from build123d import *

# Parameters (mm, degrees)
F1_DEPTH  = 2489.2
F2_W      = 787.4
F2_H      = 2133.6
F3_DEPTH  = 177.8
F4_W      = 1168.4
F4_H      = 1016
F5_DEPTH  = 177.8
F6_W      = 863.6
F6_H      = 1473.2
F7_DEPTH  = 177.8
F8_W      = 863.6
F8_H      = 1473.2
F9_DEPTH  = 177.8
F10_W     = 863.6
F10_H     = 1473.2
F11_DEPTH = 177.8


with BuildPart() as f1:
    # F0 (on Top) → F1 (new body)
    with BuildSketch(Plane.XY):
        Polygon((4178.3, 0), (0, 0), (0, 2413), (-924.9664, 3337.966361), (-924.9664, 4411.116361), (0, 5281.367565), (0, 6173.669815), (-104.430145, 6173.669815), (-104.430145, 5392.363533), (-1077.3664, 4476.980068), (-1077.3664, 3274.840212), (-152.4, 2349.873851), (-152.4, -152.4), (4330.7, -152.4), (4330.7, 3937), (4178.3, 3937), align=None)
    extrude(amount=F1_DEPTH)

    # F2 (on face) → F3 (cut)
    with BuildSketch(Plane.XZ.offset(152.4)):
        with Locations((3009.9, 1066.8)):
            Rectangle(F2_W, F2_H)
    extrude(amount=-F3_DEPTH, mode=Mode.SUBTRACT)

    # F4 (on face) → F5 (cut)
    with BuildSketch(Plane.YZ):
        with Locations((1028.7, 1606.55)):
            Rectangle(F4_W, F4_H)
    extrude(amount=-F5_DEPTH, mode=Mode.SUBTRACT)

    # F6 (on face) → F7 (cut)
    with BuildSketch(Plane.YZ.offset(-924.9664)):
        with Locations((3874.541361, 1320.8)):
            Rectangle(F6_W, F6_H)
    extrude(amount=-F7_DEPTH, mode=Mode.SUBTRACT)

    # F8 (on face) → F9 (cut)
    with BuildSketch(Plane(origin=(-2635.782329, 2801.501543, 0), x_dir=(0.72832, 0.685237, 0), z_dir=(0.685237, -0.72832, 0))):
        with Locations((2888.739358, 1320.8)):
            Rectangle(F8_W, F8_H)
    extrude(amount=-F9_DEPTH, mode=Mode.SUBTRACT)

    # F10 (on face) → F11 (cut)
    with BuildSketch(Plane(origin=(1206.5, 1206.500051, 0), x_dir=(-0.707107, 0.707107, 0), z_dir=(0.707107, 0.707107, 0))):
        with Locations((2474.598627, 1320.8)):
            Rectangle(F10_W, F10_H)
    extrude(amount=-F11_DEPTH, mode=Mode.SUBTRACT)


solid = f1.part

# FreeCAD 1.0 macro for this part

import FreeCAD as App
import Part
import Sketcher
from FreeCAD import Vector
Q = App.Units.Quantity


def add_polygon(sketch, points):
    """Adds a closed chain of lines whose ends are joined by coincident constraints."""
    first, n = sketch.GeometryCount, len(points)
    for a, b in zip(points, points[1:] + points[:1]):
        sketch.addGeometry(Part.LineSegment(App.Vector(*a, 0), App.Vector(*b, 0)), False)
    for i in range(n):
        sketch.addConstraint(Sketcher.Constraint("Coincident", first + i, 2, first + (i + 1) % n, 1))

doc = App.newDocument("Part")
params = doc.addObject("Spreadsheet::Sheet", "Params")
for row, (alias, value) in enumerate([
    ("sketch1_width", "6 in"),
    ("sketch1_height", "95 in"),
    ("sketch1_height2", "161 in"),
    ("sketch1_height3", "155 in"),
    ("sketch1_length", "50 in"),
    ("pad1_length", "98 in"),
    ("sketch2_width", "31 in"),
    ("sketch2_height", "84 in"),
    ("pocket1_length", "7 in"),
    ("sketch3_width", "46 in"),
    ("sketch3_height", "40 in"),
    ("pocket2_length", "7 in"),
    ("sketch4_width", "34 in"),
    ("sketch4_height", "58 in"),
    ("pocket3_length", "7 in"),
    ("sketch5_width", "34 in"),
    ("sketch5_height", "57.9999999 in"),
    ("pocket4_length", "7 in"),
    ("sketch6_width", "34 in"),
    ("sketch6_height", "57.9999999 in"),
    ("pocket5_length", "7 in"),
], start=1):
    params.set(f"A{row}", alias)
    params.set(f"B{row}", "=" + value)
    params.setAlias(f"B{row}", alias)

body = doc.addObject("PartDesign::Body", "Body")

# Sketch on XY plane
sketch1 = body.newObject("Sketcher::SketchObject", "Sketch")
sketch1.AttachmentSupport = (doc.getObject("XY_Plane"), [""])
sketch1.MapMode = "FlatFace"
add_polygon(sketch1, [(4178, 0), (0, 0), (0, 2413), (-925, 3338), (-925, 4411), (0, 5281), (0, 6174), (-104, 6174), (-104, 5392), (-1077, 4477), (-1077, 3275), (-152, 2350), (-152, -152), (4331, -152), (4331, 3937), (4178, 3937)])  # lines 0-15
sketch1.addConstraint(Sketcher.Constraint("Horizontal", 0))
sketch1.addConstraint(Sketcher.Constraint("Vertical", 1))
sketch1.addConstraint(Sketcher.Constraint("Vertical", 3))
sketch1.addConstraint(Sketcher.Constraint("Vertical", 5))
sketch1.addConstraint(Sketcher.Constraint("Horizontal", 6))
sketch1.addConstraint(Sketcher.Constraint("Vertical", 7))
sketch1.addConstraint(Sketcher.Constraint("Vertical", 9))
sketch1.addConstraint(Sketcher.Constraint("Vertical", 11))
sketch1.addConstraint(Sketcher.Constraint("Horizontal", 12))
sketch1.addConstraint(Sketcher.Constraint("Vertical", 13))
sketch1.addConstraint(Sketcher.Constraint("Horizontal", 14))
sketch1.addConstraint(Sketcher.Constraint("Vertical", 15))
sketch1.addConstraint(Sketcher.Constraint("Coincident", 0, 2, -1, 1))
sketch1.addConstraint(Sketcher.Constraint("PointOnObject", 4, 2, -2))
sketch1.addConstraint(Sketcher.Constraint("Parallel", 4, 8))
sketch1.addConstraint(Sketcher.Constraint("Parallel", 2, 10))
sketch1.addConstraint(Sketcher.Constraint("Equal", 2, 10))
sketch1.addConstraint(Sketcher.Constraint("DistanceX", 14, 2, 14, 1, Q("6 in")))
sketch1.addConstraint(Sketcher.Constraint("DistanceY", 1, 1, 1, 2, Q("95 in")))
sketch1.addConstraint(Sketcher.Constraint("DistanceY", 13, 1, 13, 2, Q("161 in")))
sketch1.addConstraint(Sketcher.Constraint("DistanceY", 15, 2, 15, 1, Q("155 in")))
sketch1.addConstraint(Sketcher.Constraint("Distance", 4, Q("50 in")))
sketch1.addConstraint(Sketcher.Constraint("DistanceX", 0, 2, 0, 1, Q("164.5 in")))
sketch1.addConstraint(Sketcher.Constraint("DistanceX", 12, 1, 12, 2, Q("176.5 in")))
sketch1.addConstraint(Sketcher.Constraint("Angle", 2, Q("135.000001 deg")))
sketch1.addConstraint(Sketcher.Constraint("Distance", 2, Q("51.5 in")))
sketch1.addConstraint(Sketcher.Constraint("DistanceY", 3, 1, 3, 2, Q("42.25 in")))
sketch1.addConstraint(Sketcher.Constraint("DistanceY", 5, 1, 5, 2, 892.30225))
sketch1.addConstraint(Sketcher.Constraint("DistanceY", 11, 2, 11, 1, 2502.273851))
sketch1.addConstraint(Sketcher.Constraint("DistanceX", 6, 2, 6, 1, 104.430145))
sketch1.addConstraint(Sketcher.Constraint("DistanceY", 7, 2, 7, 1, 781.306282))
sketch1.setExpression("Constraints[33]", "Params.sketch1_width")
sketch1.setExpression("Constraints[34]", "Params.sketch1_height")
sketch1.setExpression("Constraints[35]", "Params.sketch1_height2")
sketch1.setExpression("Constraints[36]", "Params.sketch1_height3")
sketch1.setExpression("Constraints[37]", "Params.sketch1_length")
pad1 = body.newObject("PartDesign::Pad", "Pad")
pad1.Profile = sketch1
pad1.setExpression("Length", "Params.pad1_length")

# Sketch on XZ plane
sketch2 = body.newObject("Sketcher::SketchObject", "Sketch001")
sketch2.AttachmentSupport = (doc.getObject("XZ_Plane"), [""])
sketch2.MapMode = "FlatFace"
sketch2.AttachmentOffset = App.Placement(Vector(0, 0, 6 * 25.4), App.Rotation())
add_polygon(sketch2, [(2616, 2134), (2616, 0), (3404, 0), (3404, 2134)])  # lines 0-3
sketch2.addConstraint(Sketcher.Constraint("Vertical", 0))
sketch2.addConstraint(Sketcher.Constraint("Horizontal", 1))
sketch2.addConstraint(Sketcher.Constraint("Vertical", 2))
sketch2.addConstraint(Sketcher.Constraint("Horizontal", 3))
sketch2.addConstraint(Sketcher.Constraint("PointOnObject", 0, 2, -1))
sketch2.addConstraint(Sketcher.Constraint("DistanceX", 1, 1, 1, 2, Q("31 in")))
sketch2.addConstraint(Sketcher.Constraint("DistanceY", 0, 2, 0, 1, Q("84 in")))
sketch2.addConstraint(Sketcher.Constraint("DistanceX", -1, 1, 0, 2, Q("103 in")))
sketch2.setExpression("Constraints[9]", "Params.sketch2_width")
sketch2.setExpression("Constraints[10]", "Params.sketch2_height")
pocket1 = body.newObject("PartDesign::Pocket", "Pocket")
pocket1.Profile = sketch2
pocket1.setExpression("Length", "Params.pocket1_length")

# Sketch on YZ plane
sketch3 = body.newObject("Sketcher::SketchObject", "Sketch002")
sketch3.AttachmentSupport = (doc.getObject("YZ_Plane"), [""])
sketch3.MapMode = "FlatFace"
add_polygon(sketch3, [(444, 2115), (444, 1099), (1613, 1099), (1613, 2115)])  # lines 0-3
sketch3.addConstraint(Sketcher.Constraint("Vertical", 0))
sketch3.addConstraint(Sketcher.Constraint("Horizontal", 1))
sketch3.addConstraint(Sketcher.Constraint("Vertical", 2))
sketch3.addConstraint(Sketcher.Constraint("Horizontal", 3))
sketch3.addConstraint(Sketcher.Constraint("DistanceX", 1, 1, 1, 2, Q("46 in")))
sketch3.addConstraint(Sketcher.Constraint("DistanceY", 0, 2, 0, 1, Q("40 in")))
sketch3.addConstraint(Sketcher.Constraint("DistanceX", -1, 1, 0, 2, Q("17.5 in")))
sketch3.addConstraint(Sketcher.Constraint("DistanceY", -1, 1, 0, 2, Q("43.25 in")))
sketch3.setExpression("Constraints[8]", "Params.sketch3_width")
sketch3.setExpression("Constraints[9]", "Params.sketch3_height")
pocket2 = body.newObject("PartDesign::Pocket", "Pocket001")
pocket2.Profile = sketch3
pocket2.setExpression("Length", "Params.pocket2_length")

# Sketch on YZ plane
sketch4 = body.newObject("Sketcher::SketchObject", "Sketch003")
sketch4.AttachmentSupport = (doc.getObject("YZ_Plane"), [""])
sketch4.MapMode = "FlatFace"
sketch4.AttachmentOffset = App.Placement(Vector(0, 0, -36.416 * 25.4), App.Rotation())
add_polygon(sketch4, [(3443, 2057), (3443, 584), (4306, 584), (4306, 2057)])  # lines 0-3
sketch4.addConstraint(Sketcher.Constraint("Vertical", 0))
sketch4.addConstraint(Sketcher.Constraint("Horizontal", 1))
sketch4.addConstraint(Sketcher.Constraint("Vertical", 2))
sketch4.addConstraint(Sketcher.Constraint("Horizontal", 3))
sketch4.addConstraint(Sketcher.Constraint("DistanceX", 1, 1, 1, 2, Q("34 in")))
sketch4.addConstraint(Sketcher.Constraint("DistanceY", 0, 2, 0, 1, Q("58 in")))
sketch4.addConstraint(Sketcher.Constraint("DistanceY", -1, 1, 0, 2, Q("23 in")))
sketch4.addConstraint(Sketcher.Constraint("DistanceX", -1, 1, 0, 2, 3442.741361))
sketch4.setExpression("Constraints[8]", "Params.sketch4_width")
sketch4.setExpression("Constraints[9]", "Params.sketch4_height")
pocket3 = body.newObject("PartDesign::Pocket", "Pocket002")
pocket3.Profile = sketch4
pocket3.setExpression("Length", "Params.pocket3_length")

# Sketch on an angled plane
sketch5 = body.newObject("Sketcher::SketchObject", "Sketch004")
sketch5.Placement = App.Placement(Vector(-2635.782329, 2801.501543, 0), App.Rotation(Vector(0.728320084, 0.685237079, 0), Vector(0, 0, 0.999999999), Vector(0.685237079, -0.728320084, 0), "ZXY"))
add_polygon(sketch5, [(2457, 2057), (2457, 584), (3321, 584), (3321, 2057)])  # lines 0-3
sketch5.addConstraint(Sketcher.Constraint("Vertical", 0))
sketch5.addConstraint(Sketcher.Constraint("Horizontal", 1))
sketch5.addConstraint(Sketcher.Constraint("Vertical", 2))
sketch5.addConstraint(Sketcher.Constraint("Horizontal", 3))
sketch5.addConstraint(Sketcher.Constraint("DistanceX", 1, 1, 1, 2, Q("34 in")))
sketch5.addConstraint(Sketcher.Constraint("DistanceY", 0, 2, 0, 1, Q("57.9999999 in")))
sketch5.addConstraint(Sketcher.Constraint("DistanceY", -1, 1, 0, 2, Q("23 in")))
sketch5.addConstraint(Sketcher.Constraint("DistanceX", -1, 1, 0, 2, 2456.939356))
sketch5.setExpression("Constraints[8]", "Params.sketch5_width")
sketch5.setExpression("Constraints[9]", "Params.sketch5_height")
pocket4 = body.newObject("PartDesign::Pocket", "Pocket003")
pocket4.Profile = sketch5
pocket4.setExpression("Length", "Params.pocket4_length")

# Sketch on an angled plane
sketch6 = body.newObject("Sketcher::SketchObject", "Sketch005")
sketch6.Placement = App.Placement(Vector(1206.5, 1206.500051, 0), App.Rotation(Vector(-0.707106781, 0.707106781, 0), Vector(0, 0, 0.999999999), Vector(0.707106781, 0.707106781, 0), "ZXY"))
add_polygon(sketch6, [(2043, 2057), (2043, 584), (2906, 584), (2906, 2057)])  # lines 0-3
sketch6.addConstraint(Sketcher.Constraint("Vertical", 0))
sketch6.addConstraint(Sketcher.Constraint("Horizontal", 1))
sketch6.addConstraint(Sketcher.Constraint("Vertical", 2))
sketch6.addConstraint(Sketcher.Constraint("Horizontal", 3))
sketch6.addConstraint(Sketcher.Constraint("DistanceX", 1, 1, 1, 2, Q("34 in")))
sketch6.addConstraint(Sketcher.Constraint("DistanceY", 0, 2, 0, 1, Q("57.9999999 in")))
sketch6.addConstraint(Sketcher.Constraint("DistanceY", -1, 1, 0, 2, Q("23 in")))
sketch6.addConstraint(Sketcher.Constraint("DistanceX", -1, 1, 0, 2, 2042.798626))
sketch6.setExpression("Constraints[8]", "Params.sketch6_width")
sketch6.setExpression("Constraints[9]", "Params.sketch6_height")
pocket5 = body.newObject("PartDesign::Pocket", "Pocket004")
pocket5.Profile = sketch6
pocket5.setExpression("Length", "Params.pocket5_length")

doc.recompute()
